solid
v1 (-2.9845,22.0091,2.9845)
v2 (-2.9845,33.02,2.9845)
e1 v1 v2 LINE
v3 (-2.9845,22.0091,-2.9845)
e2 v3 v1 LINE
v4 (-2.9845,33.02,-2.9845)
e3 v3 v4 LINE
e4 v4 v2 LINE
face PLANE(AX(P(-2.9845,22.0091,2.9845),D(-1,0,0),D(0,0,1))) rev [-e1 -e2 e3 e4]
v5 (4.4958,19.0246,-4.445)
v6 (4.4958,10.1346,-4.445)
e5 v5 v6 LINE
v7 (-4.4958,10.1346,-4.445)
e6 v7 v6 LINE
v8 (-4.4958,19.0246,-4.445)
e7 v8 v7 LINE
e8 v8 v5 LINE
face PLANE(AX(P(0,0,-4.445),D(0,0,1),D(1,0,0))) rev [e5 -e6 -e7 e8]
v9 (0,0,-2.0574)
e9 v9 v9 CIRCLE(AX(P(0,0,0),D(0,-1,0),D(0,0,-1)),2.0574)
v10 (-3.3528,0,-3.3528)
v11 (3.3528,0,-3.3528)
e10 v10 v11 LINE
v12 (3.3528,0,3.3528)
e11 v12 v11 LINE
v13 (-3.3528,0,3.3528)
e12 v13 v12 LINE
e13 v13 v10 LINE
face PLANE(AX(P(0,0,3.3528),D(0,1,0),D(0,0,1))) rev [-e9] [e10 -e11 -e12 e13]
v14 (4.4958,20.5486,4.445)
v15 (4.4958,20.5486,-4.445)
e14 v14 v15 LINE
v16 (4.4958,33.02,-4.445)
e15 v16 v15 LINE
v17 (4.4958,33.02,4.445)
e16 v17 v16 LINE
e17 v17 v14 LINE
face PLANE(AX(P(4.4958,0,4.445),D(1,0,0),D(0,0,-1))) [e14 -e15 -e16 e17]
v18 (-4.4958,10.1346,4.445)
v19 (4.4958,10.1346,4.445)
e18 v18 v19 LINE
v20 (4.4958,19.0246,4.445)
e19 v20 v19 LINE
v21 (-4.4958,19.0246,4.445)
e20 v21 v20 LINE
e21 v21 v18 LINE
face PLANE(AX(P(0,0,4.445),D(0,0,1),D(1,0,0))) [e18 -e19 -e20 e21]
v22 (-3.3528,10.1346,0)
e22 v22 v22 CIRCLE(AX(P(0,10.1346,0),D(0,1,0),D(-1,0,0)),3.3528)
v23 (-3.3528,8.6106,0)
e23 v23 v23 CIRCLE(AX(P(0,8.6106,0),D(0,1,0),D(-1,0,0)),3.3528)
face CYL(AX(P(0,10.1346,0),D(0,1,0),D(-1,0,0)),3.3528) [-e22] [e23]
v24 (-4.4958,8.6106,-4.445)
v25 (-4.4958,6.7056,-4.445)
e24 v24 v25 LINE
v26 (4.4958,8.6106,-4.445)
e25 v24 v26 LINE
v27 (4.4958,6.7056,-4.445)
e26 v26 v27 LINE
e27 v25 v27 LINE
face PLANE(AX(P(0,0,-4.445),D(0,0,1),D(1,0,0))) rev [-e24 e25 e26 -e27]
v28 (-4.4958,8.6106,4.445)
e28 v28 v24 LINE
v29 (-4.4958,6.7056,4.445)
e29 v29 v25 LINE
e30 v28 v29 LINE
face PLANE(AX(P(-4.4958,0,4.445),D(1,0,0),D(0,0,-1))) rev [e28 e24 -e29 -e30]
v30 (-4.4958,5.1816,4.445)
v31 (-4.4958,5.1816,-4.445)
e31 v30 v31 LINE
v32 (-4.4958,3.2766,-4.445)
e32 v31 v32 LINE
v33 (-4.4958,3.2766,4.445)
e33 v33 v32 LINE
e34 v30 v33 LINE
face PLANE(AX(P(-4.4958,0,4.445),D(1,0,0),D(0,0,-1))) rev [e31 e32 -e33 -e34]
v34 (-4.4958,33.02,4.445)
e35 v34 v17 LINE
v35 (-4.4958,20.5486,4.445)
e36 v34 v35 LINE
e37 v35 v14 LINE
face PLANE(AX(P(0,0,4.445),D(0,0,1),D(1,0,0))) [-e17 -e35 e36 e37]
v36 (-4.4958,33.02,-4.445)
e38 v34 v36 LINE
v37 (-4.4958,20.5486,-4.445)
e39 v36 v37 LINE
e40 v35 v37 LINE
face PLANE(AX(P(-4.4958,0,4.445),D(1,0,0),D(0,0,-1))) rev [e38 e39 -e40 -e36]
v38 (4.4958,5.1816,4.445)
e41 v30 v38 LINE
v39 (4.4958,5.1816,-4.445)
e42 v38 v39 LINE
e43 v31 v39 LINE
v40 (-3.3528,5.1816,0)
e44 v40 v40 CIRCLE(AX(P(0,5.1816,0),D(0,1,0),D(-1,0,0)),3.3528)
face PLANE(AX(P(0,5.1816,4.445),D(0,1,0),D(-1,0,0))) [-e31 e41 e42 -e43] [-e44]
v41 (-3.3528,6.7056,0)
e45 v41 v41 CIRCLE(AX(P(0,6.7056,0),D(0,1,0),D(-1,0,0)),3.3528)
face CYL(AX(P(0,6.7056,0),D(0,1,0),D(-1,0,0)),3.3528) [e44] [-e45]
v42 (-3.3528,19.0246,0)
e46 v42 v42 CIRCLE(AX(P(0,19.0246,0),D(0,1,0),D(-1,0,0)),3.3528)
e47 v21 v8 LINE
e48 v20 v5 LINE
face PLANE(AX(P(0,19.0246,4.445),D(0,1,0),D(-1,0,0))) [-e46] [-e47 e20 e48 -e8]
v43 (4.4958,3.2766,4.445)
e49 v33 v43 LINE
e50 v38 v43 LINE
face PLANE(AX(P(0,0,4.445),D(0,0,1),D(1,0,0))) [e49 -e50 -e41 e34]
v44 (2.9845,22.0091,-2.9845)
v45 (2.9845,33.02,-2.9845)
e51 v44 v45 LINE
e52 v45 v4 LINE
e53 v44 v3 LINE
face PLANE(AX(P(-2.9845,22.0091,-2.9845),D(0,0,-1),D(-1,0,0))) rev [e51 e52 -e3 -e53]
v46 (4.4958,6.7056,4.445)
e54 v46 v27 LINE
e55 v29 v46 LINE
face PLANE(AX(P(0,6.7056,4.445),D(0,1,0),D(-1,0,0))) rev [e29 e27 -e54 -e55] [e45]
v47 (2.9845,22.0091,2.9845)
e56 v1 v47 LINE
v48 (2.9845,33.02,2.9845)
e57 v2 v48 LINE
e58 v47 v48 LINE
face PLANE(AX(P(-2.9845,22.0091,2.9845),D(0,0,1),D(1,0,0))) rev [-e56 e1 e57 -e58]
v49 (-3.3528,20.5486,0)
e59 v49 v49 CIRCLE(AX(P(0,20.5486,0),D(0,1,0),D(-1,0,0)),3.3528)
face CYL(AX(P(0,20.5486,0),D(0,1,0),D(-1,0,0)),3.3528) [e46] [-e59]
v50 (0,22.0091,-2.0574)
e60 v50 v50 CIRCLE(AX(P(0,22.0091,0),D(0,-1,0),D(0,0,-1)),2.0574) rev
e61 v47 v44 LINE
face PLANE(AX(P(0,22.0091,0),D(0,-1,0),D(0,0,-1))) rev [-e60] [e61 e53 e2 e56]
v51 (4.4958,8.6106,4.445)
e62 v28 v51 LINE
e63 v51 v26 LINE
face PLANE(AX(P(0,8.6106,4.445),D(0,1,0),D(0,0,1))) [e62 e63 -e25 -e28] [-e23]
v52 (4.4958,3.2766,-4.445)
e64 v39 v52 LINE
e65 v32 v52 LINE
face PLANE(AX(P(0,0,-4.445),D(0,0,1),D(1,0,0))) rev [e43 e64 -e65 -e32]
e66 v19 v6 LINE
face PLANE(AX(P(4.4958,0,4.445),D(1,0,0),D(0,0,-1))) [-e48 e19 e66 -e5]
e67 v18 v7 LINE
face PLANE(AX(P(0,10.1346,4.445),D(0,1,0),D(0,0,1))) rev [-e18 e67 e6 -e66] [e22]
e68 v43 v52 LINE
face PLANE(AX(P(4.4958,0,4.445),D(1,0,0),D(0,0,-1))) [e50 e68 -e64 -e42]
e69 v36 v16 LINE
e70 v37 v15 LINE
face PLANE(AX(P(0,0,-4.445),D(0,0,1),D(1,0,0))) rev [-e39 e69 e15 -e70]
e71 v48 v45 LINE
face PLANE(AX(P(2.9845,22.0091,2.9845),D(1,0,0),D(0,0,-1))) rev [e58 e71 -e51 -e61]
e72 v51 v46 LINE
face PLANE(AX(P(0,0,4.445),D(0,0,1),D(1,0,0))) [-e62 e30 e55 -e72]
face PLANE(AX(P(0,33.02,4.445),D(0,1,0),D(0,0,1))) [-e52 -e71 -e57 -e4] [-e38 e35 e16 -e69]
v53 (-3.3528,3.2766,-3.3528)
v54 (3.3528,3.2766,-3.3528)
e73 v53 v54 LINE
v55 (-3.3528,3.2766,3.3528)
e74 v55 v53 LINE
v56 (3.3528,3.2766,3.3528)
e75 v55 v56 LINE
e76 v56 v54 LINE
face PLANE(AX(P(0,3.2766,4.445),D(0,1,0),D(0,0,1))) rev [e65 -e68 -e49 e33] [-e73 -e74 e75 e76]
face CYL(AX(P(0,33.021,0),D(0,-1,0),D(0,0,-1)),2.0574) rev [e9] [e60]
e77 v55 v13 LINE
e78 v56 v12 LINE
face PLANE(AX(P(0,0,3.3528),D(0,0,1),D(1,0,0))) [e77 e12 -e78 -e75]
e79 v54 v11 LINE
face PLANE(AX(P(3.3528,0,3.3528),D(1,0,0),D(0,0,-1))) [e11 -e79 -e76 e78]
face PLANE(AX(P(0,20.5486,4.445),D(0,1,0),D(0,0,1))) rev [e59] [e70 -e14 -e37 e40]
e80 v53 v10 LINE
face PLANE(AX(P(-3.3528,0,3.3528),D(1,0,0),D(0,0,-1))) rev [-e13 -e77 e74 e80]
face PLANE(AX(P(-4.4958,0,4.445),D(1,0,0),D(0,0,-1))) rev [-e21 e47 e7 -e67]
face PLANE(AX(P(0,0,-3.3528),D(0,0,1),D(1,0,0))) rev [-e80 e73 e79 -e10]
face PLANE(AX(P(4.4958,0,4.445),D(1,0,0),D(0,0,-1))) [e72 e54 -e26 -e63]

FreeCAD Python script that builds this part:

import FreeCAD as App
import Part
import Sketcher

V = App.Vector
Q = App.Units.Quantity

doc = App.newDocument("Part")
body = doc.addObject("PartDesign::Body", "Body")

sketch1 = body.newObject("Sketcher::SketchObject", "Sketch")
sketch1.AttachmentSupport = (doc.getObject("XY_Plane"), [""])
sketch1.MapMode = "FlatFace"
sketch1.addGeometry([
    Part.LineSegment(V(-4.5, 5.2, 0), V(-4.5, 3.3, 0)),
    Part.LineSegment(V(-4.5, 3.3, 0), V(4.5, 3.3, 0)),
    Part.LineSegment(V(4.5, 3.3, 0), V(4.5, 5.2, 0)),
    Part.LineSegment(V(4.5, 5.2, 0), V(-4.5, 5.2, 0)),
], False)
sketch1.addConstraint([
    Sketcher.Constraint("Coincident", 0, 2, 1, 1),
    Sketcher.Constraint("Coincident", 1, 2, 2, 1),
    Sketcher.Constraint("Coincident", 2, 2, 3, 1),
    Sketcher.Constraint("Coincident", 3, 2, 0, 1),
    Sketcher.Constraint("Vertical", 0),
    Sketcher.Constraint("Horizontal", 1),
    Sketcher.Constraint("Vertical", 2),
    Sketcher.Constraint("Horizontal", 3),
    Sketcher.Constraint("DistanceX", 1, 1, 1, 2, Q("0.354 in")),
    Sketcher.Constraint("DistanceY", 0, 2, 0, 1, Q("0.075 in")),
    Sketcher.Constraint("DistanceX", 0, 2, -1, 1, Q("0.177 in")),
    Sketcher.Constraint("DistanceY", -1, 1, 0, 2, Q("0.129 in")),
])
pad1 = body.newObject("PartDesign::Pad", "Pad")
pad1.Profile = sketch1
pad1.Length = Q("0.35 in")
pad1.Midplane = True

sketch2 = body.newObject("Sketcher::SketchObject", "Sketch001")
sketch2.AttachmentSupport = (doc.getObject("XY_Plane"), [""])
sketch2.MapMode = "FlatFace"
sketch2.addGeometry([
    Part.LineSegment(V(-3.4, 6.7, 0), V(-3.4, 5.2, 0)),
    Part.LineSegment(V(-3.4, 5.2, 0), V(0, 5.2, 0)),
    Part.LineSegment(V(0, 5.2, 0), V(0, 6.7, 0)),
    Part.LineSegment(V(0, 6.7, 0), V(-3.4, 6.7, 0)),
], False)
sketch2.addConstraint([
    Sketcher.Constraint("Coincident", 0, 2, 1, 1),
    Sketcher.Constraint("Coincident", 1, 2, 2, 1),
    Sketcher.Constraint("Coincident", 2, 2, 3, 1),
    Sketcher.Constraint("Coincident", 3, 2, 0, 1),
    Sketcher.Constraint("Vertical", 0),
    Sketcher.Constraint("Horizontal", 1),
    Sketcher.Constraint("Vertical", 2),
    Sketcher.Constraint("Horizontal", 3),
    Sketcher.Constraint("PointOnObject", 1, 2, -2),
    Sketcher.Constraint("DistanceY", 0, 2, 0, 1, Q("0.06 in")),
    Sketcher.Constraint("DistanceX", 1, 1, 1, 2, Q("0.132 in")),
    Sketcher.Constraint("DistanceY", -1, 1, 0, 2, Q("0.204 in")),
])
revolution = body.newObject("PartDesign::Revolution", "Revolution")
revolution.Profile = sketch2
revolution.ReferenceAxis = (sketch2, ["V_Axis"])
revolution.Angle = 360

sketch3 = body.newObject("Sketcher::SketchObject", "Sketch002")
sketch3.AttachmentSupport = (doc.getObject("XY_Plane"), [""])
sketch3.MapMode = "FlatFace"
sketch3.addGeometry([
    Part.LineSegment(V(-4.5, 8.6, 0), V(-4.5, 6.7, 0)),
    Part.LineSegment(V(-4.5, 6.7, 0), V(4.5, 6.7, 0)),
    Part.LineSegment(V(4.5, 6.7, 0), V(4.5, 8.6, 0)),
    Part.LineSegment(V(4.5, 8.6, 0), V(-4.5, 8.6, 0)),
], False)
sketch3.addConstraint([
    Sketcher.Constraint("Coincident", 0, 2, 1, 1),
    Sketcher.Constraint("Coincident", 1, 2, 2, 1),
    Sketcher.Constraint("Coincident", 2, 2, 3, 1),
    Sketcher.Constraint("Coincident", 3, 2, 0, 1),
    Sketcher.Constraint("Vertical", 0),
    Sketcher.Constraint("Horizontal", 1),
    Sketcher.Constraint("Vertical", 2),
    Sketcher.Constraint("Horizontal", 3),
    Sketcher.Constraint("DistanceX", 1, 1, 1, 2, Q("0.354 in")),
    Sketcher.Constraint("DistanceY", 0, 2, 0, 1, Q("0.075 in")),
    Sketcher.Constraint("DistanceX", 0, 2, -1, 1, Q("0.177 in")),
    Sketcher.Constraint("DistanceY", -1, 1, 0, 2, Q("0.264 in")),
])
pad2 = body.newObject("PartDesign::Pad", "Pad001")
pad2.Profile = sketch3
pad2.Length = Q("0.35 in")
pad2.Midplane = True

sketch4 = body.newObject("Sketcher::SketchObject", "Sketch003")
sketch4.AttachmentSupport = (doc.getObject("XY_Plane"), [""])
sketch4.MapMode = "FlatFace"
sketch4.addGeometry([
    Part.LineSegment(V(-3.4, 10.1, 0), V(-3.4, 8.6, 0)),
    Part.LineSegment(V(-3.4, 8.6, 0), V(0, 8.6, 0)),
    Part.LineSegment(V(0, 8.6, 0), V(0, 10.1, 0)),
    Part.LineSegment(V(0, 10.1, 0), V(-3.4, 10.1, 0)),
], False)
sketch4.addConstraint([
    Sketcher.Constraint("Coincident", 0, 2, 1, 1),
    Sketcher.Constraint("Coincident", 1, 2, 2, 1),
    Sketcher.Constraint("Coincident", 2, 2, 3, 1),
    Sketcher.Constraint("Coincident", 3, 2, 0, 1),
    Sketcher.Constraint("Vertical", 0),
    Sketcher.Constraint("Horizontal", 1),
    Sketcher.Constraint("Vertical", 2),
    Sketcher.Constraint("Horizontal", 3),
    Sketcher.Constraint("PointOnObject", 1, 2, -2),
    Sketcher.Constraint("DistanceY", 0, 2, 0, 1, Q("0.06 in")),
    Sketcher.Constraint("DistanceX", 1, 1, 1, 2, Q("0.132 in")),
    Sketcher.Constraint("DistanceY", -1, 1, 0, 2, Q("0.339 in")),
])
revolution2 = body.newObject("PartDesign::Revolution", "Revolution001")
revolution2.Profile = sketch4
revolution2.ReferenceAxis = (sketch4, ["V_Axis"])
revolution2.Angle = 360

sketch5 = body.newObject("Sketcher::SketchObject", "Sketch004")
sketch5.AttachmentSupport = (doc.getObject("XY_Plane"), [""])
sketch5.MapMode = "FlatFace"
sketch5.addGeometry([
    Part.LineSegment(V(-4, 19, 0), V(-4, 10, 0)),
    Part.LineSegment(V(-4, 10, 0), V(4, 10, 0)),
    Part.LineSegment(V(4, 10, 0), V(4, 19, 0)),
    Part.LineSegment(V(4, 19, 0), V(-4, 19, 0)),
], False)
sketch5.addConstraint([
    Sketcher.Constraint("Coincident", 0, 2, 1, 1),
    Sketcher.Constraint("Coincident", 1, 2, 2, 1),
    Sketcher.Constraint("Coincident", 2, 2, 3, 1),
    Sketcher.Constraint("Coincident", 3, 2, 0, 1),
    Sketcher.Constraint("Vertical", 0),
    Sketcher.Constraint("Horizontal", 1),
    Sketcher.Constraint("Vertical", 2),
    Sketcher.Constraint("Horizontal", 3),
    Sketcher.Constraint("DistanceY", 0, 2, 0, 1, Q("0.35 in")),
    Sketcher.Constraint("DistanceX", 1, 1, 1, 2, Q("0.354 in")),
    Sketcher.Constraint("DistanceX", 0, 2, -1, 1, Q("0.177 in")),
    Sketcher.Constraint("DistanceY", -1, 1, 0, 2, Q("0.399 in")),
])
pad3 = body.newObject("PartDesign::Pad", "Pad002")
pad3.Profile = sketch5
pad3.Length = Q("0.35 in")
pad3.Midplane = True

sketch6 = body.newObject("Sketcher::SketchObject", "Sketch005")
sketch6.AttachmentSupport = (doc.getObject("XY_Plane"), [""])
sketch6.MapMode = "FlatFace"
sketch6.addGeometry([
    Part.LineSegment(V(-3.4, 20.5, 0), V(-3.4, 19, 0)),
    Part.LineSegment(V(-3.4, 19, 0), V(0, 19, 0)),
    Part.LineSegment(V(0, 19, 0), V(0, 20.5, 0)),
    Part.LineSegment(V(0, 20.5, 0), V(-3.4, 20.5, 0)),
], False)
sketch6.addConstraint([
    Sketcher.Constraint("Coincident", 0, 2, 1, 1),
    Sketcher.Constraint("Coincident", 1, 2, 2, 1),
    Sketcher.Constraint("Coincident", 2, 2, 3, 1),
    Sketcher.Constraint("Coincident", 3, 2, 0, 1),
    Sketcher.Constraint("Vertical", 0),
    Sketcher.Constraint("Horizontal", 1),
    Sketcher.Constraint("Vertical", 2),
    Sketcher.Constraint("Horizontal", 3),
    Sketcher.Constraint("PointOnObject", 1, 2, -2),
    Sketcher.Constraint("DistanceY", 0, 2, 0, 1, Q("0.06 in")),
    Sketcher.Constraint("DistanceX", 1, 1, 1, 2, Q("0.132 in")),
    Sketcher.Constraint("DistanceY", -1, 1, 0, 2, Q("0.749 in")),
])
revolution3 = body.newObject("PartDesign::Revolution", "Revolution002")
revolution3.Profile = sketch6
revolution3.ReferenceAxis = (sketch6, ["V_Axis"])
revolution3.Angle = 360

sketch7 = body.newObject("Sketcher::SketchObject", "Sketch006")
sketch7.AttachmentSupport = (doc.getObject("XY_Plane"), [""])
sketch7.MapMode = "FlatFace"
sketch7.addGeometry([
    Part.LineSegment(V(-4, 21, 0), V(4, 21, 0)),
    Part.LineSegment(V(4, 21, 0), V(4, 33, 0)),
    Part.LineSegment(V(4, 33, 0), V(-4, 33, 0)),
    Part.LineSegment(V(-4, 33, 0), V(-4, 21, 0)),
], False)
sketch7.addConstraint([
    Sketcher.Constraint("Coincident", 0, 2, 1, 1),
    Sketcher.Constraint("Coincident", 1, 2, 2, 1),
    Sketcher.Constraint("Coincident", 2, 2, 3, 1),
    Sketcher.Constraint("Coincident", 3, 2, 0, 1),
    Sketcher.Constraint("Horizontal", 0),
    Sketcher.Constraint("Vertical", 1),
    Sketcher.Constraint("Horizontal", 2),
    Sketcher.Constraint("Vertical", 3),
    Sketcher.Constraint("DistanceY", -1, 1, 1, 2, Q("1.3 in")),
    Sketcher.Constraint("DistanceX", 0, 1, 0, 2, Q("0.354 in")),
    Sketcher.Constraint("DistanceY", 1, 1, 1, 2, Q("0.491 in")),
    Sketcher.Constraint("DistanceX", -1, 1, 0, 2, Q("0.177 in")),
])
pad4 = body.newObject("PartDesign::Pad", "Pad003")
pad4.Profile = sketch7
pad4.Length = Q("0.35 in")
pad4.Midplane = True

sketch8 = body.newObject("Sketcher::SketchObject", "Sketch007")
sketch8.AttachmentSupport = (doc.getObject("XY_Plane"), [""])
sketch8.MapMode = "FlatFace"
sketch8.addGeometry([
    Part.LineSegment(V(-3.4, 3.3, 0), V(-3.4, 0, 0)),
    Part.LineSegment(V(-3.4, 0, 0), V(3.4, 0, 0)),
    Part.LineSegment(V(3.4, 0, 0), V(3.4, 3.3, 0)),
    Part.LineSegment(V(3.4, 3.3, 0), V(-3.4, 3.3, 0)),
], False)
sketch8.addConstraint([
    Sketcher.Constraint("Coincident", 0, 2, 1, 1),
    Sketcher.Constraint("Coincident", 1, 2, 2, 1),
    Sketcher.Constraint("Coincident", 2, 2, 3, 1),
    Sketcher.Constraint("Coincident", 3, 2, 0, 1),
    Sketcher.Constraint("Vertical", 0),
    Sketcher.Constraint("Horizontal", 1),
    Sketcher.Constraint("Vertical", 2),
    Sketcher.Constraint("Horizontal", 3),
    Sketcher.Constraint("Symmetric", 0, 2, 1, 2, -1, 1),
    Sketcher.Constraint("DistanceX", 1, 1, 1, 2, Q("0.264 in")),
    Sketcher.Constraint("DistanceY", 0, 2, 0, 1, Q("0.129 in")),
])
pad5 = body.newObject("PartDesign::Pad", "Pad004")
pad5.Profile = sketch8
pad5.Length = Q("0.264 in")
pad5.Midplane = True

sketch9 = body.newObject("Sketcher::SketchObject", "Sketch008")
sketch9.AttachmentSupport = (doc.getObject("XZ_Plane"), [""])
sketch9.MapMode = "FlatFace"
sketch9.AttachmentOffset = App.Placement(V(0, 0, -1.3 * 25.4), App.Rotation())
sketch9.addGeometry([
    Part.LineSegment(V(-3, -3, 0), V(-3, 3, 0)),
    Part.LineSegment(V(-3, 3, 0), V(3, 3, 0)),
    Part.LineSegment(V(3, 3, 0), V(3, -3, 0)),
    Part.LineSegment(V(3, -3, 0), V(-3, -3, 0)),
], False)
sketch9.addConstraint([
    Sketcher.Constraint("Coincident", 0, 2, 1, 1),
    Sketcher.Constraint("Coincident", 1, 2, 2, 1),
    Sketcher.Constraint("Coincident", 2, 2, 3, 1),
    Sketcher.Constraint("Coincident", 3, 2, 0, 1),
    Sketcher.Constraint("Vertical", 0),
    Sketcher.Constraint("Horizontal", 1),
    Sketcher.Constraint("Vertical", 2),
    Sketcher.Constraint("Horizontal", 3),
    Sketcher.Constraint("Symmetric", 0, 2, 2, 2, -1, 1),
    Sketcher.Constraint("Equal", 3, 0),
    Sketcher.Constraint("DistanceX", 1, 1, 1, 2, Q("0.235 in")),
])
pocket1 = body.newObject("PartDesign::Pocket", "Pocket")
pocket1.Profile = sketch9
pocket1.Length = Q("0.4335 in")
pocket1.Reversed = True

sketch10 = body.newObject("Sketcher::SketchObject", "Sketch009")
sketch10.AttachmentSupport = (doc.getObject("XZ_Plane"), [""])
sketch10.MapMode = "FlatFace"
sketch10.addGeometry(Part.Circle(V(0, 0, 0), V(0, 0, 1), 2.1), False)
sketch10.addConstraint([
    Sketcher.Constraint("Coincident", 0, 3, -1, 1),
    Sketcher.Constraint("Diameter", 0, Q("0.162 in")),
])
pocket2 = body.newObject("PartDesign::Pocket", "Pocket001")
pocket2.Profile = sketch10
pocket2.Type = "UpToFirst"

doc.recompute()
